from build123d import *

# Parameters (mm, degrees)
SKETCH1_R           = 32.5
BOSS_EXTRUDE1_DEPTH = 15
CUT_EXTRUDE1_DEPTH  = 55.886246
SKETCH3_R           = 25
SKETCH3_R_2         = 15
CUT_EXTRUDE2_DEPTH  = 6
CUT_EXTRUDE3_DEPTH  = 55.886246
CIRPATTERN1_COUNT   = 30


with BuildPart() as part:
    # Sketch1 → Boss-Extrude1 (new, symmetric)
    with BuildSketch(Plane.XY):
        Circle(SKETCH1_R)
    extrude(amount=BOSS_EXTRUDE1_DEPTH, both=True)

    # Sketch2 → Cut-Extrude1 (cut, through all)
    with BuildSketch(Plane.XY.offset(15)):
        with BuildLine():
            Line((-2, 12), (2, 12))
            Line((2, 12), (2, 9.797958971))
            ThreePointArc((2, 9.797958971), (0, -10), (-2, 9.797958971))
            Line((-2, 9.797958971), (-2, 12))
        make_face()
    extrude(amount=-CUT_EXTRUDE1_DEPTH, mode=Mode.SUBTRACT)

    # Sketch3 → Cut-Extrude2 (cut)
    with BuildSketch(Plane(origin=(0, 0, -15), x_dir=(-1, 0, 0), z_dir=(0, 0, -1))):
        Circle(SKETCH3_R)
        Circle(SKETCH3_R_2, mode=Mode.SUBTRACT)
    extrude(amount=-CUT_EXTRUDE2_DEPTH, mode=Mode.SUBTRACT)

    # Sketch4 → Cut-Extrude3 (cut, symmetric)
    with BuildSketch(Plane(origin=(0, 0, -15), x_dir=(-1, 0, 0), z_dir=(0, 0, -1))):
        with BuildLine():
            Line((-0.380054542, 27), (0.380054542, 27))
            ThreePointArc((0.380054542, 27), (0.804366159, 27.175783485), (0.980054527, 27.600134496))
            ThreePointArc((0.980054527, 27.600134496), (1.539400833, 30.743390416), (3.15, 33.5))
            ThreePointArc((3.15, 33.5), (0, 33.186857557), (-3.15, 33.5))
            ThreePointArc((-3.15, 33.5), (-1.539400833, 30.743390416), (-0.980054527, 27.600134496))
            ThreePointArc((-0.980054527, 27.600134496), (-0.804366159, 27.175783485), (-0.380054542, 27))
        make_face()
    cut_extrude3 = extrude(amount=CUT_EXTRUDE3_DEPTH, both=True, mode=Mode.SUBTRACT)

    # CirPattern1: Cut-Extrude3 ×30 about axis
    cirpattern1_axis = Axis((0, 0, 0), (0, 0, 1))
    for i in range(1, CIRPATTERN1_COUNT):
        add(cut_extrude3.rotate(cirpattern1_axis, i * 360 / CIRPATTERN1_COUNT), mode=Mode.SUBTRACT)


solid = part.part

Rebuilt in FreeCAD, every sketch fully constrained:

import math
import FreeCAD as App
import Part
import Sketcher

V = App.Vector
Q = App.Units.Quantity

doc = App.newDocument("Part")
body = doc.addObject("PartDesign::Body", "Body")

# Sketch on XY plane
sketch1 = body.newObject("Sketcher::SketchObject", "Sketch")
sketch1.AttachmentSupport = (doc.getObject("XY_Plane"), [""])
sketch1.MapMode = "FlatFace"
sketch1.addGeometry(Part.Circle(V(0, 0, 0), V(0, 0, 1), 32), False)
sketch1.addConstraint(Sketcher.Constraint("Coincident", 0, 3, -1, 1))
sketch1.addConstraint(Sketcher.Constraint("Diameter", 0, Q("65 mm")))
pad1 = body.newObject("PartDesign::Pad", "Pad")
pad1.Profile = sketch1
pad1.Length = 30
pad1.Midplane = True

# Sketch on XY plane
sketch2 = body.newObject("Sketcher::SketchObject", "Sketch001")
sketch2.AttachmentSupport = (doc.getObject("XY_Plane"), [""])
sketch2.MapMode = "FlatFace"
sketch2.AttachmentOffset = App.Placement(V(0, 0, 15), App.Rotation())
sketch2.addGeometry(Part.LineSegment(V(2, 12, 0), V(-2, 12, 0)), False)
sketch2.addGeometry(Part.LineSegment(V(-2, 12, 0), V(-2, 9.8, 0)), False)
sketch2.addGeometry(Part.ArcOfCircle(Part.Circle(V(0, 0, 0), V(0, 0, 1), 10), math.radians(102), math.radians(438)), False)
sketch2.addGeometry(Part.LineSegment(V(2, 9.8, 0), V(2, 12, 0)), False)
sketch2.addConstraint(Sketcher.Constraint("Coincident", 0, 2, 1, 1))
sketch2.addConstraint(Sketcher.Constraint("Coincident", 1, 2, 2, 1))
sketch2.addConstraint(Sketcher.Constraint("Coincident", 2, 2, 3, 1))
sketch2.addConstraint(Sketcher.Constraint("Coincident", 3, 2, 0, 1))
sketch2.addConstraint(Sketcher.Constraint("Horizontal", 0))
sketch2.addConstraint(Sketcher.Constraint("Vertical", 1))
sketch2.addConstraint(Sketcher.Constraint("Vertical", 3))
sketch2.addConstraint(Sketcher.Constraint("Coincident", 2, 3, -1, 1))
sketch2.addConstraint(Sketcher.Constraint("Horizontal", 1, 2, 2, 2))
sketch2.addConstraint(Sketcher.Constraint("Radius", 2, Q("10 mm")))
sketch2.addConstraint(Sketcher.Constraint("DistanceX", 0, 2, 0, 1, Q("4 mm")))
sketch2.addConstraint(Sketcher.Constraint("DistanceY", -1, 1, 0, 2, Q("12 mm")))
pocket1 = body.newObject("PartDesign::Pocket", "Pocket")
pocket1.Profile = sketch2
pocket1.Type = "ThroughAll"

# Sketch on XY plane
sketch3 = body.newObject("Sketcher::SketchObject", "Sketch002")
sketch3.AttachmentSupport = (doc.getObject("XY_Plane"), [""])
sketch3.MapMode = "FlatFace"
sketch3.AttachmentOffset = App.Placement(V(0, 0, -15), App.Rotation())
sketch3.addGeometry(Part.Circle(V(0, 0, 0), V(0, 0, 1), 25), False)
sketch3.addGeometry(Part.Circle(V(0, 0, 0), V(0, 0, 1), 15), False)
sketch3.addConstraint(Sketcher.Constraint("Coincident", 0, 3, -1, 1))
sketch3.addConstraint(Sketcher.Constraint("Coincident", 1, 3, -1, 1))
sketch3.addConstraint(Sketcher.Constraint("Diameter", 0, Q("50 mm")))
sketch3.addConstraint(Sketcher.Constraint("Diameter", 1, Q("30 mm")))
pocket2 = body.newObject("PartDesign::Pocket", "Pocket001")
pocket2.Profile = sketch3
pocket2.Length = 6
pocket2.Reversed = True

# Sketch on XY plane
sketch4 = body.newObject("Sketcher::SketchObject", "Sketch003")
sketch4.AttachmentSupport = (doc.getObject("XY_Plane"), [""])
sketch4.MapMode = "FlatFace"
sketch4.AttachmentOffset = App.Placement(V(0, 0, -15), App.Rotation())
sketch4.addGeometry(Part.LineSegment(V(0.4, 27, 0), V(-0.4, 27, 0)), False)
sketch4.addGeometry(Part.ArcOfCircle(Part.Circle(V(-0.4, 27.6, 0), V(0, 0, 1), 0.6), math.radians(180), math.radians(270)), False)
sketch4.addGeometry(Part.ArcOfCircle(Part.Circle(V(-10.1, 27.6, 0), V(0, 0, 1), 9.1), math.radians(0), math.radians(40)), False)
sketch4.addGeometry(Part.ArcOfCircle(Part.Circle(V(0, 49.2, 0), V(0, 0, 1), 16), math.radians(-101), math.radians(-79)), False)
sketch4.addGeometry(Part.ArcOfCircle(Part.Circle(V(10.1, 27.6, 0), V(0, 0, 1), 9.1), math.radians(140), math.radians(180)), False)
sketch4.addGeometry(Part.ArcOfCircle(Part.Circle(V(0.4, 27.6, 0), V(0, 0, 1), 0.6), math.radians(-90), math.radians(0)), False)
sketch4.addConstraint(Sketcher.Constraint("Tangent", 0, 2, 1, 2))
sketch4.addConstraint(Sketcher.Constraint("Tangent", 1, 1, 2, 1))
sketch4.addConstraint(Sketcher.Constraint("Coincident", 2, 2, 3, 1))
sketch4.addConstraint(Sketcher.Constraint("Coincident", 3, 2, 4, 1))
sketch4.addConstraint(Sketcher.Constraint("Tangent", 4, 2, 5, 2))
sketch4.addConstraint(Sketcher.Constraint("Tangent", 5, 1, 0, 1))
sketch4.addConstraint(Sketcher.Constraint("Horizontal", 0))
sketch4.addConstraint(Sketcher.Constraint("Equal", 2, 4))
sketch4.addConstraint(Sketcher.Constraint("Equal", 1, 5))
sketch4.addConstraint(Sketcher.Constraint("Symmetric", 2, 3, 4, 3, -2))
sketch4.addConstraint(Sketcher.Constraint("PointOnObject", 3, 3, -2))
sketch4.addConstraint(Sketcher.Constraint("Radius", 3, Q("16 mm")))
sketch4.addConstraint(Sketcher.Constraint("Radius", 1, Q("0.6 mm")))
sketch4.addConstraint(Sketcher.Constraint("Radius", 2, Q("9.1 mm")))
sketch4.addConstraint(Sketcher.Constraint("DistanceY", -1, 1, 0, 2, Q("27 mm")))
sketch4.addConstraint(Sketcher.Constraint("DistanceY", -1, 1, 2, 2, Q("33.5 mm")))
sketch4.addConstraint(Sketcher.Constraint("DistanceX", 2, 2, 3, 2, Q("6.3 mm")))
sketch4.addConstraint(Sketcher.Constraint("DistanceX", 0, 2, 0, 1, Q("0.760109 mm")))
pocket3 = body.newObject("PartDesign::Pocket", "Pocket002")
pocket3.Profile = sketch4
pocket3.Length = 111.772492
pocket3.Midplane = True
doc.recompute()

polarpattern = body.newObject("PartDesign::PolarPattern", "PolarPattern")
polarpattern.Originals = [pocket3]
polarpattern.Axis = (doc.getObject("Z_Axis"), [""])
polarpattern.Angle = 360
polarpattern.Occurrences = 30
body.Tip = polarpattern

doc.recompute()
